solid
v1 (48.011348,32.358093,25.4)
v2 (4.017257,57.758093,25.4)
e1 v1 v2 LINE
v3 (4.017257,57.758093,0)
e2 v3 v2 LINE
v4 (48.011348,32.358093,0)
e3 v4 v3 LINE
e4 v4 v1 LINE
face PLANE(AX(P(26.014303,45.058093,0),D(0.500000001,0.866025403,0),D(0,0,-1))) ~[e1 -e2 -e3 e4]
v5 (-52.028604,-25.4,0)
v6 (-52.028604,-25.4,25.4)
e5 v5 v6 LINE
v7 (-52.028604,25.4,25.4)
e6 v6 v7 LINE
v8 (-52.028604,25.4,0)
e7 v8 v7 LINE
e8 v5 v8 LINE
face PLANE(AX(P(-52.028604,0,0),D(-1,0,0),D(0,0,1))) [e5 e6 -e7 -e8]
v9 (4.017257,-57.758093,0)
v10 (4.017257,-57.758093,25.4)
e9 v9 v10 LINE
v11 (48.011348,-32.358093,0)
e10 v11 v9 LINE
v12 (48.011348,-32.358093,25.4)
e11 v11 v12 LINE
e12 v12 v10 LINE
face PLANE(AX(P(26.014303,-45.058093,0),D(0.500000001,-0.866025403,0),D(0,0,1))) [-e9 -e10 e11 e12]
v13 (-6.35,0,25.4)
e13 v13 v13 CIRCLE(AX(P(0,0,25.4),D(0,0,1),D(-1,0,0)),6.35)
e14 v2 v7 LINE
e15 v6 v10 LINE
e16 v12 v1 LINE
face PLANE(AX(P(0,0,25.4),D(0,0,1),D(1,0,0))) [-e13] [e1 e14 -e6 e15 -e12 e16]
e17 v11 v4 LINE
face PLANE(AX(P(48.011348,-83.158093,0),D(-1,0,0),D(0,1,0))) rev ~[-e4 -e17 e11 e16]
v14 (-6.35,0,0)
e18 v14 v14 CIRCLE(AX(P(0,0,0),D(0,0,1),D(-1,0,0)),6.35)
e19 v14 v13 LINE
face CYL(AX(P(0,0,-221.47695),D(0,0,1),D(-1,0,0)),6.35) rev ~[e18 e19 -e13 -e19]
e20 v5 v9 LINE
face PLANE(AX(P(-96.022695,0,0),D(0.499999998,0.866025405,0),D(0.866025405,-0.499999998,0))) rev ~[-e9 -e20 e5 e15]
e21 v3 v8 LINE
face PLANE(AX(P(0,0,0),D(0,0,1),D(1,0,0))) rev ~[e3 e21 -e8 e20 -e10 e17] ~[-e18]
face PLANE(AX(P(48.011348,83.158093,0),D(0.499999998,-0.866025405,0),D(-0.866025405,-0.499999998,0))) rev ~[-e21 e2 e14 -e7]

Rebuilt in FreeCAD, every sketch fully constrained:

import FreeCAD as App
import Part
import Sketcher
Q = App.Units.Quantity


def edges_at(feature, points):
    """Names of the edges that pass closest to the given points."""
    edges = feature.Shape.Edges
    near = lambda p: min(range(len(edges)), key=lambda i: edges[i].distToShape(Part.Vertex(*p))[0])
    return sorted({f"Edge{near(p) + 1}" for p in points})

doc = App.newDocument("Part")
body = doc.addObject("PartDesign::Body", "Body")

# Sketch on XY plane
sketch1 = doc.addObject("Sketcher::SketchObject", "Sketch")
body.addObject(sketch1)
sketch1.AttachmentSupport = (doc.XY_Plane, [""])
sketch1.MapMode = "FlatFace"
sketch1.addGeometry([
    Part.LineSegment(App.Vector(48.011348, -83.158093, 0), App.Vector(48.011348, 83.158093, 0)),
    Part.LineSegment(App.Vector(48.011348, 83.158093, 0), App.Vector(-96.022695, 0, 0)),
    Part.LineSegment(App.Vector(-96.022695, 0, 0), App.Vector(48.011348, -83.158093, 0)),
], False)
sketch1.addConstraint([
    Sketcher.Constraint("Coincident", 0, 2, 1, 1),
    Sketcher.Constraint("Coincident", 1, 2, 2, 1),
    Sketcher.Constraint("Coincident", 2, 2, 0, 1),
    Sketcher.Constraint("Vertical", 0),
    Sketcher.Constraint("PointOnObject", 1, 2, -1),
    Sketcher.Constraint("Equal", 1, 2),
    Sketcher.Constraint("Angle", 1, Q("-150 deg")),
    Sketcher.Constraint("DistanceY", 0, 1, 0, 2, 166.316186),
    Sketcher.Constraint("DistanceX", -1, 1, 0, 2, 48.011348),
])
pad1 = doc.addObject("PartDesign::Pad", "Pad")
body.addObject(pad1)
pad1.Profile = sketch1
pad1.Length = Q("1 in")

# Sketch on XY plane
sketch2 = doc.addObject("Sketcher::SketchObject", "Sketch001")
body.addObject(sketch2)
sketch2.AttachmentSupport = (doc.XY_Plane, [""])
sketch2.MapMode = "FlatFace"
sketch2.addGeometry(Part.Circle(App.Vector(0, 0, 0), App.Vector(0, 0, 1), 6.35), False)
sketch2.addConstraint([
    Sketcher.Constraint("Coincident", 0, 3, -1, 1),
    Sketcher.Constraint("Diameter", 0, Q("0.5 in")),
])
doc.recompute()
hole = doc.addObject("PartDesign::Hole", "Hole")
body.addObject(hole)
hole.Profile = sketch2
hole.ThreadType = "None"
hole.Diameter = Q("0.5 in")
hole.DepthType = "ThroughAll"
hole.Reversed = True
doc.recompute()

chamfer = doc.addObject("PartDesign::Chamfer", "Chamfer")
body.addObject(chamfer)
chamfer.Base = (hole, edges_at(hole, [(48.011, -83.158, 12.7), (48.011, 83.158, 12.7), (-96.023, 0, 12.7)]))
chamfer.Size = Q("2 in")

doc.recompute()
